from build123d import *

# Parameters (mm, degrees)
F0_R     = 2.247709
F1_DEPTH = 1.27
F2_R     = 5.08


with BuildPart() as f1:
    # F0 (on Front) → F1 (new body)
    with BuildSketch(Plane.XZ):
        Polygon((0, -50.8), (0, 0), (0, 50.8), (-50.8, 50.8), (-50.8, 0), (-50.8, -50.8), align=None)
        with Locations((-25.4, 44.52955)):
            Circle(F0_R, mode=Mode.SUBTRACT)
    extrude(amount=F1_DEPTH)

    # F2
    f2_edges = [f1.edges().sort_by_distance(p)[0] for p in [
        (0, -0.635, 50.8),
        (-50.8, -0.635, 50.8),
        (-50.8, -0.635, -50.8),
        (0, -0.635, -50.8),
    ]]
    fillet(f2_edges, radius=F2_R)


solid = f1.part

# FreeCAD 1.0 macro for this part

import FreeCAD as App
import Part
import Sketcher
Q = App.Units.Quantity


def edges_at(feature, points):
    """Names of the edges that pass closest to the given points."""
    edges = feature.Shape.Edges
    near = lambda p: min(range(len(edges)), key=lambda i: edges[i].distToShape(Part.Vertex(*p))[0])
    return sorted({f"Edge{near(p) + 1}" for p in points})

doc = App.newDocument("Part")
body = doc.addObject("PartDesign::Body", "Body")

# Sketch on XZ plane
sketch1 = doc.addObject("Sketcher::SketchObject", "Sketch")
body.addObject(sketch1)
sketch1.AttachmentSupport = (doc.XZ_Plane, [""])
sketch1.MapMode = "FlatFace"
sketch1.addGeometry([
    Part.LineSegment(App.Vector(0, -50.8, 0), App.Vector(0, 50.8, 0)),  # 0
    Part.LineSegment(App.Vector(0, 50.8, 0), App.Vector(-50.8, 50.8, 0)),  # 1
    Part.LineSegment(App.Vector(-50.8, 50.8, 0), App.Vector(-50.8, -50.8, 0)),  # 2
    Part.LineSegment(App.Vector(-50.8, -50.8, 0), App.Vector(0, -50.8, 0)),  # 3
    Part.Circle(App.Vector(-25.4, 44.5, 0), App.Vector(0, 0, 1), 2.2),  # 4
], False)
sketch1.addConstraint([
    Sketcher.Constraint("Coincident", 0, 2, 1, 1),
    Sketcher.Constraint("Coincident", 1, 2, 2, 1),
    Sketcher.Constraint("Coincident", 2, 2, 3, 1),
    Sketcher.Constraint("Coincident", 3, 2, 0, 1),
    Sketcher.Constraint("Vertical", 0),
    Sketcher.Constraint("Horizontal", 1),
    Sketcher.Constraint("Vertical", 2),
    Sketcher.Constraint("Horizontal", 3),
    Sketcher.Constraint("Symmetric", 0, 2, 3, 2, -1, 1),
    Sketcher.Constraint("DistanceX", 1, 2, 1, 1, Q("2 in")),
    Sketcher.Constraint("DistanceY", 0, 1, 0, 2, Q("4 in")),
    Sketcher.Constraint("DistanceX", 4, 3, -1, 1, Q("1 in")),
    Sketcher.Constraint("Diameter", 4, 4.495418),
    Sketcher.Constraint("DistanceY", -1, 1, 4, 3, 44.52955),
])
pad1 = doc.addObject("PartDesign::Pad", "Pad")
body.addObject(pad1)
pad1.Profile = sketch1
pad1.Length = Q("0.05 in")
doc.recompute()

fillet = doc.addObject("PartDesign::Fillet", "Fillet")
body.addObject(fillet)
fillet.Base = (pad1, edges_at(pad1, [
    (0, -0.635, 50.8),
    (-50.8, -0.635, 50.8),
    (-50.8, -0.635, -50.8),
    (0, -0.635, -50.8),
]))
fillet.Radius = Q("0.2 in")

doc.recompute()
